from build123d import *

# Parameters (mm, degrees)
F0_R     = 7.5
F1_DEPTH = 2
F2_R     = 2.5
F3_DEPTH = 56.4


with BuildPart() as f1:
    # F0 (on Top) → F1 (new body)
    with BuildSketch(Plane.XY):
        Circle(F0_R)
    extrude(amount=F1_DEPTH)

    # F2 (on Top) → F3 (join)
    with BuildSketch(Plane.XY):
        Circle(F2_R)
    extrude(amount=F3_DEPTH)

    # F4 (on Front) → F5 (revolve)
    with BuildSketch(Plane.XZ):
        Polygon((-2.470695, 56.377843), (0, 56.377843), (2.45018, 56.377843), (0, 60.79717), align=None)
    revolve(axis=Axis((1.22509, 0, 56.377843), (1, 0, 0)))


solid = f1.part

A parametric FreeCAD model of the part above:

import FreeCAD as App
import Part
import Sketcher
from FreeCAD import Vector

doc = App.newDocument("Part")
body = doc.addObject("PartDesign::Body", "Body")

# Sketch on XY plane
sketch1 = body.newObject("Sketcher::SketchObject", "Sketch")
sketch1.AttachmentSupport = (doc.getObject("XY_Plane"), [""])
sketch1.MapMode = "FlatFace"
sketch1.addGeometry(Part.Circle(Vector(0, 0, 0), Vector(0, 0, 1), 8), False)
sketch1.addConstraint([
    Sketcher.Constraint("Coincident", 0, 3, -1, 1),
    Sketcher.Constraint("Diameter", 0, 15.0),
])
pad1 = body.newObject("PartDesign::Pad", "Pad")
pad1.Profile = sketch1
pad1.Length = 2

# Sketch on XY plane
sketch2 = body.newObject("Sketcher::SketchObject", "Sketch001")
sketch2.AttachmentSupport = (doc.getObject("XY_Plane"), [""])
sketch2.MapMode = "FlatFace"
sketch2.addGeometry(Part.Circle(Vector(0, 0, 0), Vector(0, 0, 1), 2.5), False)
sketch2.addConstraint([
    Sketcher.Constraint("Coincident", 0, 3, -1, 1),
    Sketcher.Constraint("Diameter", 0, 5.0),
])
pad2 = body.newObject("PartDesign::Pad", "Pad001")
pad2.Profile = sketch2
pad2.Length = 56.4

# Sketch on XZ plane
sketch3 = body.newObject("Sketcher::SketchObject", "Sketch002")
sketch3.AttachmentSupport = (doc.getObject("XZ_Plane"), [""])
sketch3.MapMode = "FlatFace"
sketch3.addGeometry([
    Part.LineSegment(Vector(-2.5, 56.4, 0), Vector(2.5, 56.4, 0)),
    Part.LineSegment(Vector(2.5, 56.4, 0), Vector(0, 60.8, 0)),
    Part.LineSegment(Vector(0, 60.8, 0), Vector(-2.5, 56.4, 0)),
], False)
sketch3.addGeometry(Part.LineSegment(Vector(-2.5, 56.4, 0), Vector(2.5, 56.4, 0)), True)  # axis
sketch3.addConstraint([
    Sketcher.Constraint("Coincident", 0, 2, 1, 1),
    Sketcher.Constraint("Coincident", 1, 2, 2, 1),
    Sketcher.Constraint("Coincident", 2, 2, 0, 1),
    Sketcher.Constraint("Horizontal", 0),
    Sketcher.Constraint("Horizontal", 3),
    Sketcher.Constraint("Coincident", 3, 1, 2, 2),
    Sketcher.Constraint("PointOnObject", 1, 2, -2),
    Sketcher.Constraint("Equal", 0, 3),
    Sketcher.Constraint("Distance", 1, 5.053101),
    Sketcher.Constraint("Distance", 2, 5.063081),
    Sketcher.Constraint("DistanceX", 0, 1, 0, 2, 4.920875),
    Sketcher.Constraint("DistanceY", -1, 1, 1, 2, 60.79717),
])
revolution = body.newObject("PartDesign::Revolution", "Revolution")
revolution.Profile = sketch3
revolution.ReferenceAxis = (sketch3, ["Axis0"])
revolution.Angle = 360

doc.recompute()
